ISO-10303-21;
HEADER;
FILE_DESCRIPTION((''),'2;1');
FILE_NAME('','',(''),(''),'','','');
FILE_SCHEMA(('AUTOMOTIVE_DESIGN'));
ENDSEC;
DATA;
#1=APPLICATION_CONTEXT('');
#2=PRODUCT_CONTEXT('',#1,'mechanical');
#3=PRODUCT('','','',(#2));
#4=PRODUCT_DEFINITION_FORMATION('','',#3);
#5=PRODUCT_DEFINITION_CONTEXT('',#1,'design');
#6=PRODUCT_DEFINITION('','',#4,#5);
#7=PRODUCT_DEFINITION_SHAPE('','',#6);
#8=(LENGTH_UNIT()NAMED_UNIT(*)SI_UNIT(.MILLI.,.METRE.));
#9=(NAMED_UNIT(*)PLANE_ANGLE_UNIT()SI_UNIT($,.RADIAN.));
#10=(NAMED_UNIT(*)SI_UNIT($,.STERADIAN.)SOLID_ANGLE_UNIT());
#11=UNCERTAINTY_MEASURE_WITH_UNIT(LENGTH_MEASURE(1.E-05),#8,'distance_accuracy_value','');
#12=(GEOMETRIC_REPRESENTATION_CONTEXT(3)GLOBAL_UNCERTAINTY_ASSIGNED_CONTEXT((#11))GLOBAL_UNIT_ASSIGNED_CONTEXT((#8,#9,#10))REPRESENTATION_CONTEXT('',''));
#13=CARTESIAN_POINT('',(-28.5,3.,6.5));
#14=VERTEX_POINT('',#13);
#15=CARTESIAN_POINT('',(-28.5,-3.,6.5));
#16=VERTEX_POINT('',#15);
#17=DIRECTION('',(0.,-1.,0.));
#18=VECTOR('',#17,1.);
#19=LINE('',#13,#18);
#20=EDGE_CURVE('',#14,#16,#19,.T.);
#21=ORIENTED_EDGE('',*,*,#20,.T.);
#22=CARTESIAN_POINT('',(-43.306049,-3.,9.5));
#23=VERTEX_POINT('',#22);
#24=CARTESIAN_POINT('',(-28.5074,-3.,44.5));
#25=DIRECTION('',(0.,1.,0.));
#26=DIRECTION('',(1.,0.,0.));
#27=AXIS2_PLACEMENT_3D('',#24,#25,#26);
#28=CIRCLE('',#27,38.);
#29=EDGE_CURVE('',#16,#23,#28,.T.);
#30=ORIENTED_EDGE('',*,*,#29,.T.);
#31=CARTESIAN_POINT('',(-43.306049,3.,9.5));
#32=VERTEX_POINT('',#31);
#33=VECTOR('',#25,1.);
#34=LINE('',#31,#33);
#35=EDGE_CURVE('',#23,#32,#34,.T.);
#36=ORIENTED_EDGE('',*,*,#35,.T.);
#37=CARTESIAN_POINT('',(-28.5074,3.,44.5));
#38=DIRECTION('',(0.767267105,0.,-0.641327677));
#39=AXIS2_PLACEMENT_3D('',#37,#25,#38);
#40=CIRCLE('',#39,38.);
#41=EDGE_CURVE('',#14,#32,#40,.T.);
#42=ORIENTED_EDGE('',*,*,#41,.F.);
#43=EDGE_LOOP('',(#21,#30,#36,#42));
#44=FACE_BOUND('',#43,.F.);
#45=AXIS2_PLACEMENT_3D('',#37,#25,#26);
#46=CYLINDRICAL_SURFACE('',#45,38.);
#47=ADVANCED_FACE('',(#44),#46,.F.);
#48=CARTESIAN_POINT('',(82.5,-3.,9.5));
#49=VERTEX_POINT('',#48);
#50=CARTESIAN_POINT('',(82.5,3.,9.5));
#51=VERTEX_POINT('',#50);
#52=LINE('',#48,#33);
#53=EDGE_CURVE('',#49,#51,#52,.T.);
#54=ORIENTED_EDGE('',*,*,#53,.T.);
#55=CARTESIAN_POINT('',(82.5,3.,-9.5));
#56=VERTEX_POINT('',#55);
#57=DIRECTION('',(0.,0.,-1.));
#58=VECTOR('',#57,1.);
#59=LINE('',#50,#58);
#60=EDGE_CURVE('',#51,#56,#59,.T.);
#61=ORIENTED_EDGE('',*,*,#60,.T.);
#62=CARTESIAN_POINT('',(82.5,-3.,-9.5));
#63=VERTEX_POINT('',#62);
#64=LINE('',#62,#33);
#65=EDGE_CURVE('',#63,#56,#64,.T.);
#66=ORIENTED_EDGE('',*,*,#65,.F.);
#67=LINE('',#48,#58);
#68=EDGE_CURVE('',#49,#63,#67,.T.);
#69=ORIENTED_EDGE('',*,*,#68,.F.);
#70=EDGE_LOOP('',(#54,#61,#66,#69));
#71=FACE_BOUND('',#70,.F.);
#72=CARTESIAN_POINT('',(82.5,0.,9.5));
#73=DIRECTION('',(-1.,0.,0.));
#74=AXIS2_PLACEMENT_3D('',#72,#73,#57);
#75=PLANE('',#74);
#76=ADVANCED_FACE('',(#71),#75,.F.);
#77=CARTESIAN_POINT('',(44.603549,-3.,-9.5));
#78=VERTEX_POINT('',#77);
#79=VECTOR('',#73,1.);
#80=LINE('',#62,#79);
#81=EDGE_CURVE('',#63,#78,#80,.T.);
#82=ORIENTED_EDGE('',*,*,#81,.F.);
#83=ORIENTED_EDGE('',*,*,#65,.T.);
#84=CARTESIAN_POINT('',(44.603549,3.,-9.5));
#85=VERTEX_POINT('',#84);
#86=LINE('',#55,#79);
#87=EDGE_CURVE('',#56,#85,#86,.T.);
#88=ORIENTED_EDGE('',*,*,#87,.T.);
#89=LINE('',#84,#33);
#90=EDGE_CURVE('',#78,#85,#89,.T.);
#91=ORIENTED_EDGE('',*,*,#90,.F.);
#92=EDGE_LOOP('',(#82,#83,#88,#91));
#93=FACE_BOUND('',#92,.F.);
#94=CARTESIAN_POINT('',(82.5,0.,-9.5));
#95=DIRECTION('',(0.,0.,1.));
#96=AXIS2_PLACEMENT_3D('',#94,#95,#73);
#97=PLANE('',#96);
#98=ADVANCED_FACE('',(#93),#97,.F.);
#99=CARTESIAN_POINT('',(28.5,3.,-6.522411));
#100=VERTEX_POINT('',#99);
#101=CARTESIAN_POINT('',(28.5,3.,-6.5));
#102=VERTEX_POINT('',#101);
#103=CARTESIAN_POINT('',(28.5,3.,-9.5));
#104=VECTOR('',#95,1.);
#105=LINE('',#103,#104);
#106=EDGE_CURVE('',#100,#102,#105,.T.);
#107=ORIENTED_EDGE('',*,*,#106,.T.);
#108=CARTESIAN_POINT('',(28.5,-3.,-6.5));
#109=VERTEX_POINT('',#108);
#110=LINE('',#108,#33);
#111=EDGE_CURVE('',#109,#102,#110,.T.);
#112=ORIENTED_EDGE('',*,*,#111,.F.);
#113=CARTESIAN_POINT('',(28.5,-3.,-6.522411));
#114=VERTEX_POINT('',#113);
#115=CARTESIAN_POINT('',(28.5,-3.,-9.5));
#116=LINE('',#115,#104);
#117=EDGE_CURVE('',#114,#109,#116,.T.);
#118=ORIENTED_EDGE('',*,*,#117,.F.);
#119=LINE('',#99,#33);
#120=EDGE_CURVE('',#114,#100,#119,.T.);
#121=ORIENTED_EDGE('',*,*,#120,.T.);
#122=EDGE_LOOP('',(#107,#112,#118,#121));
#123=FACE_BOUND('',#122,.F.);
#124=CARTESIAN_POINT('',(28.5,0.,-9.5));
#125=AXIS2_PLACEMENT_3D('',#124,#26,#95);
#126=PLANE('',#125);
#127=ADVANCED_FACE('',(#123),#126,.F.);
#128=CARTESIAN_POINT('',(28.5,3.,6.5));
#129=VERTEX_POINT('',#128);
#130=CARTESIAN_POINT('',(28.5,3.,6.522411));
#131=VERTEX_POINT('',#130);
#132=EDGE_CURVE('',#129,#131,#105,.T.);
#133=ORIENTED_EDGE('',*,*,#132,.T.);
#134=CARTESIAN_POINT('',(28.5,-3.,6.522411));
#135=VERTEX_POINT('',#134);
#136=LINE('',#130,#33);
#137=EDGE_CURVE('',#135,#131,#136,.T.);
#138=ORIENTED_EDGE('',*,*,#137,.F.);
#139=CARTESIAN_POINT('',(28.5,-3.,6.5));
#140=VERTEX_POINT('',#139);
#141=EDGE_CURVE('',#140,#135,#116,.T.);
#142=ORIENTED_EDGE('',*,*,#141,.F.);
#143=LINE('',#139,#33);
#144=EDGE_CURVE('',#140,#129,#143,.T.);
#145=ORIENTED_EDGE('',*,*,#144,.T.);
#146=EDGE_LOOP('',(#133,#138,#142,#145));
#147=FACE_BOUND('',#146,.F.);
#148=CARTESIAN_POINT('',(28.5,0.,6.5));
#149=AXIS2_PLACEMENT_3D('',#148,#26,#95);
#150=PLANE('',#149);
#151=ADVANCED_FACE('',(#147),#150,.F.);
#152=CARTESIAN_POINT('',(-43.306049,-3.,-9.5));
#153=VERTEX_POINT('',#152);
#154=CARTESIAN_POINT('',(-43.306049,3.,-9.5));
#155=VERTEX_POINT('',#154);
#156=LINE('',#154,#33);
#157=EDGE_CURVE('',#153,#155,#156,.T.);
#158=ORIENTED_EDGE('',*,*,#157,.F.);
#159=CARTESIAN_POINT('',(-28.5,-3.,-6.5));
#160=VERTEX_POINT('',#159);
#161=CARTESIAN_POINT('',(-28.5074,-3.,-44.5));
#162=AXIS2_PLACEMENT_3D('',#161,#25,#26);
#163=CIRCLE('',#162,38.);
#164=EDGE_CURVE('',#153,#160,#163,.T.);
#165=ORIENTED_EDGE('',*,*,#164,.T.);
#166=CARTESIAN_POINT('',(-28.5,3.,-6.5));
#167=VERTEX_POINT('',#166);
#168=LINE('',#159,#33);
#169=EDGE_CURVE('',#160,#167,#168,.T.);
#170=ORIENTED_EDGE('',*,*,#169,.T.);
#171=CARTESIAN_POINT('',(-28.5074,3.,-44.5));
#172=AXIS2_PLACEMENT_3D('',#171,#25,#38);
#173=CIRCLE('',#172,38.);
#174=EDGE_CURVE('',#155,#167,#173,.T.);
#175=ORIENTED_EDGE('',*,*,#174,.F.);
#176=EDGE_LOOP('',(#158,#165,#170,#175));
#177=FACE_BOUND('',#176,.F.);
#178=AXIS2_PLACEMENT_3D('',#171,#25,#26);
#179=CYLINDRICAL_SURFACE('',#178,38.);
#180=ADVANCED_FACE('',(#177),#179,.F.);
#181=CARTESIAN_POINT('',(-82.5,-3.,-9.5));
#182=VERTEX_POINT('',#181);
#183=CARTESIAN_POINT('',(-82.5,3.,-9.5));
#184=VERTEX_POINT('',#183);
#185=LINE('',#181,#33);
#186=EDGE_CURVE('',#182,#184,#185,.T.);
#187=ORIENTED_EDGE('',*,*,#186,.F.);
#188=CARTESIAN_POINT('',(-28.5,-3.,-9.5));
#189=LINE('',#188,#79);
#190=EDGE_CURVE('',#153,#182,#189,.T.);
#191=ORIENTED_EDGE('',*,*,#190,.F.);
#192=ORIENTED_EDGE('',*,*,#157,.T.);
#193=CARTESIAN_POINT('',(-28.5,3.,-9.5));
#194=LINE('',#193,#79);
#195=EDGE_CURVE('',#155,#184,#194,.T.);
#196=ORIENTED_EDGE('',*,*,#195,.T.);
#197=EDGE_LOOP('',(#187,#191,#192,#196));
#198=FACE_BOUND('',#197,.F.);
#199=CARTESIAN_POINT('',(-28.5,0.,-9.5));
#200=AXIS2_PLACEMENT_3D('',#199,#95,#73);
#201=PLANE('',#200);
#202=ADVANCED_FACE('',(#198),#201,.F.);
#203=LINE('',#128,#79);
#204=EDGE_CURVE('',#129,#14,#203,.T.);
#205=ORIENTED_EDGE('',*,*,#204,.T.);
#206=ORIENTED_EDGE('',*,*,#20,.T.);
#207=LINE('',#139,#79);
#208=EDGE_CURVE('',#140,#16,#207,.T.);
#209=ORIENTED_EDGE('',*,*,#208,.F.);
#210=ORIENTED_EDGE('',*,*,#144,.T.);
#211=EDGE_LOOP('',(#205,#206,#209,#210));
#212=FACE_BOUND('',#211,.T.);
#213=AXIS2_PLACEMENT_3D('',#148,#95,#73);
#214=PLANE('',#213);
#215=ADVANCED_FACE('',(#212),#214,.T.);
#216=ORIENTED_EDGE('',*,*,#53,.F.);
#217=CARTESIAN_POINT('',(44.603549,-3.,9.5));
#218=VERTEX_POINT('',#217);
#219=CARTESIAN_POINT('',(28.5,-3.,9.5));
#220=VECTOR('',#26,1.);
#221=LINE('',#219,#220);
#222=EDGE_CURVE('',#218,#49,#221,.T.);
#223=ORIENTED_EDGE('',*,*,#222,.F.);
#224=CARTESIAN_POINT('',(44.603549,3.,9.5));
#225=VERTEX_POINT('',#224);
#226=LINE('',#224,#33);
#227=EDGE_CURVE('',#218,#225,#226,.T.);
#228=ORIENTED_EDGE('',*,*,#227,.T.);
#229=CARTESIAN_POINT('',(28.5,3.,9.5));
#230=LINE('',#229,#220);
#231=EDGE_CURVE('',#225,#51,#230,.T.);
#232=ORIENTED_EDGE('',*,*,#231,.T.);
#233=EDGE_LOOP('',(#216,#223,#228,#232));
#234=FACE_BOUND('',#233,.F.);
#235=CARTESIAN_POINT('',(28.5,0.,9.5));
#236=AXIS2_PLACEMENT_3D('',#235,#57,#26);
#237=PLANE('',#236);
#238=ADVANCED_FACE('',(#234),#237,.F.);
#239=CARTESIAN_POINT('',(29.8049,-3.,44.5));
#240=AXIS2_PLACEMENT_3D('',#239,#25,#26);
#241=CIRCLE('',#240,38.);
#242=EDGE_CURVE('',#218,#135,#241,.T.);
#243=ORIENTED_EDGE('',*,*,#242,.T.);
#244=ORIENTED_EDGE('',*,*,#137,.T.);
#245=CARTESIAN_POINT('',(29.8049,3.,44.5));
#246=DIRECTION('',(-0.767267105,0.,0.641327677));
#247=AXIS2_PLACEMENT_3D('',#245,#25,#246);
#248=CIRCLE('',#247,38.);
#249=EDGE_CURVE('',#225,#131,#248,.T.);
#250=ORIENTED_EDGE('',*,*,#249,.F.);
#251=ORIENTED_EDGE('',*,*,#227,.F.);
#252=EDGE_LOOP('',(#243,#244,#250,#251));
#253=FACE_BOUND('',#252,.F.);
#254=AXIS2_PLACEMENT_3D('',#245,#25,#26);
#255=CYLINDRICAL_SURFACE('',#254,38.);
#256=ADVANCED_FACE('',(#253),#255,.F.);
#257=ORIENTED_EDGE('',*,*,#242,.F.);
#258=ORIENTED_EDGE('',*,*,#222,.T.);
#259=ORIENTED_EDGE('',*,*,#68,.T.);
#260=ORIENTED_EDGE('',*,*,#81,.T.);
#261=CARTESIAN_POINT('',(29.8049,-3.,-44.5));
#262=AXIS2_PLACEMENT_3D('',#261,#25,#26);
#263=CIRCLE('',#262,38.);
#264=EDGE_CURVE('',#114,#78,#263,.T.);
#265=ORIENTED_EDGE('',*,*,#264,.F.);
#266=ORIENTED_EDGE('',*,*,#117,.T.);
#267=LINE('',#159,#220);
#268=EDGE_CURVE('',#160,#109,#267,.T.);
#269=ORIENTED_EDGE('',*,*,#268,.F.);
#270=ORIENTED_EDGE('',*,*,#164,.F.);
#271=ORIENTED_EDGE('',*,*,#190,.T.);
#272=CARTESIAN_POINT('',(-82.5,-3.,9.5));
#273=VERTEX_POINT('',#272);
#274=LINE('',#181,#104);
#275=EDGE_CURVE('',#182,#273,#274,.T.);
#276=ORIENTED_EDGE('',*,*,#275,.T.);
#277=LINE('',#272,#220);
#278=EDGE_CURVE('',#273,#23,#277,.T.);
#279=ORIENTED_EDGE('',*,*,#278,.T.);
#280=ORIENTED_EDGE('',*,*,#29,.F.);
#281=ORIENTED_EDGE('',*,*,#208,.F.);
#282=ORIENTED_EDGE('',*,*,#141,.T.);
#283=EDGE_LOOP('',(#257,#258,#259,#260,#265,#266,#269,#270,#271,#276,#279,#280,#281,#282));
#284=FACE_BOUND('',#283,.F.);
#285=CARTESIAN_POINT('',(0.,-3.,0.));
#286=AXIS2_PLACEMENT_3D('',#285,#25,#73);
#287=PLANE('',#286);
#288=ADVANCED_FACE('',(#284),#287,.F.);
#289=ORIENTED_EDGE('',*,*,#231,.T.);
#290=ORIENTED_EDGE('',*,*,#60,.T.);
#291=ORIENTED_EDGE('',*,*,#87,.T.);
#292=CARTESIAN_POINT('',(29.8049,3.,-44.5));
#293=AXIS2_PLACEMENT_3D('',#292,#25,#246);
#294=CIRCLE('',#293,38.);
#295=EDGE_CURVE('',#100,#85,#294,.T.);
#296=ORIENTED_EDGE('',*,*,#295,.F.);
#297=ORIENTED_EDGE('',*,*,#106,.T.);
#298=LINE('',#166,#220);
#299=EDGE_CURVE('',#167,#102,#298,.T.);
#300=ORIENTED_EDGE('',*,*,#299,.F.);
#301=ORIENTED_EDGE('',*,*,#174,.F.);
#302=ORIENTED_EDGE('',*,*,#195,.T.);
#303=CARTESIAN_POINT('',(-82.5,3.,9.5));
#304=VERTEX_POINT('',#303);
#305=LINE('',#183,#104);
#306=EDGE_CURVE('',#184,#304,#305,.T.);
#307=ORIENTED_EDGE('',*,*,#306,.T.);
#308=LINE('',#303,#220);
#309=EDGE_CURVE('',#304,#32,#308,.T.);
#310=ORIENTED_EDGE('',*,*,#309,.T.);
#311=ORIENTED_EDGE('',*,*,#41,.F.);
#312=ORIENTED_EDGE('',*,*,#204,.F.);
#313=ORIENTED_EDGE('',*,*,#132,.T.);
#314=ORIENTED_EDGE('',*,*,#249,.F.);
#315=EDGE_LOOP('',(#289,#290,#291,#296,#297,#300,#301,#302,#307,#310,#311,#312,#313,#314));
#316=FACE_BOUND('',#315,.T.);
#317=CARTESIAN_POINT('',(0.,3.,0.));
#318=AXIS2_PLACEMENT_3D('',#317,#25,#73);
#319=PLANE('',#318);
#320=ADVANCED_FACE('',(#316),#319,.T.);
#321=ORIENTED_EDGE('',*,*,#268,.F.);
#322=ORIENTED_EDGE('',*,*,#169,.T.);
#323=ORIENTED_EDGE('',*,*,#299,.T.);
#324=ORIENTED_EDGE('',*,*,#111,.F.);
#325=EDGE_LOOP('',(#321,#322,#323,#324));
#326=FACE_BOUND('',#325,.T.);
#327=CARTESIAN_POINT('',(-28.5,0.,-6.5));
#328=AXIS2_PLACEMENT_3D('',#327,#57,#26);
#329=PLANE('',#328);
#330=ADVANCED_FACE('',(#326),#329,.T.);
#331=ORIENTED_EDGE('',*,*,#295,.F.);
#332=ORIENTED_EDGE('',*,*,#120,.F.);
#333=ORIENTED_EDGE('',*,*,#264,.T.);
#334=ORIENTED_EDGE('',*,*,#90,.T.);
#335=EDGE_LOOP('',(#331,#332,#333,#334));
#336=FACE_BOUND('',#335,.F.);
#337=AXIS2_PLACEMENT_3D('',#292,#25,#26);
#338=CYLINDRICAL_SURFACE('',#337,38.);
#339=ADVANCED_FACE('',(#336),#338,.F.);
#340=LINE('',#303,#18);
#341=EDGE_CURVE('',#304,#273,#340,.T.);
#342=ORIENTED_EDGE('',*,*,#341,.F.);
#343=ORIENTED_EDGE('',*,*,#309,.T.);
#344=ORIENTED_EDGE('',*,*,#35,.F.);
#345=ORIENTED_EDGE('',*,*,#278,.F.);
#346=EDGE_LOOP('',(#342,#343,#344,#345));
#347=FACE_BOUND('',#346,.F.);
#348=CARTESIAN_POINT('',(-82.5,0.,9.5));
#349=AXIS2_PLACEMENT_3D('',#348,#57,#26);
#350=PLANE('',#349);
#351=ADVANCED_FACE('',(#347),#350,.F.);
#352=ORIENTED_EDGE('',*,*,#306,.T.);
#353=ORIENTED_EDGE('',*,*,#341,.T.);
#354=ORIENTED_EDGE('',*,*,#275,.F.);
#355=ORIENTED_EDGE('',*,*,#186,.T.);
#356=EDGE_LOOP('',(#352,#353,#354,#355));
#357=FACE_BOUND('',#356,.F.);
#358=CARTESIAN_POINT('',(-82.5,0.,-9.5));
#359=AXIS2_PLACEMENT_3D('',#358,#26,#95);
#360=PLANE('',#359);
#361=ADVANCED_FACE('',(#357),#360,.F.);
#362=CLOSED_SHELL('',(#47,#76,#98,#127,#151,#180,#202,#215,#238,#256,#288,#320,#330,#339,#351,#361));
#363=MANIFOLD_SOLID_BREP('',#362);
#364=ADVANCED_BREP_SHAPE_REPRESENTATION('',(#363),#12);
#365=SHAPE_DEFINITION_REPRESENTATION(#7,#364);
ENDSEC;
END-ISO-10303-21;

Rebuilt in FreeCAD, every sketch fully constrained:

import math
import FreeCAD as App
import Part
import Sketcher
Q = App.Units.Quantity


def add_polygon(sketch, points):
    """Adds a closed chain of lines whose ends are joined by coincident constraints."""
    first, n = sketch.GeometryCount, len(points)
    for a, b in zip(points, points[1:] + points[:1]):
        sketch.addGeometry(Part.LineSegment(App.Vector(*a, 0), App.Vector(*b, 0)), False)
    for i in range(n):
        sketch.addConstraint(Sketcher.Constraint("Coincident", first + i, 2, first + (i + 1) % n, 1))

doc = App.newDocument("Part")
body = doc.addObject("PartDesign::Body", "Body")

sketch1 = body.newObject("Sketcher::SketchObject", "Sketch")
sketch1.AttachmentSupport = (doc.getObject("XZ_Plane"), [""])
sketch1.MapMode = "FlatFace"
add_polygon(sketch1, [(-28.5, 6.5), (28.5, 6.5), (28.5, 9.5), (82.5, 9.5), (82.5, -9.5), (28.5, -9.5), (28.5, -6.5), (-28.5, -6.5), (-28.5, -9.5), (-82.5, -9.5), (-82.5, 9.5), (-28.5, 9.5)])
sketch1.addConstraint(Sketcher.Constraint("Horizontal", 0))
sketch1.addConstraint(Sketcher.Constraint("Vertical", 1))
sketch1.addConstraint(Sketcher.Constraint("Horizontal", 2))
sketch1.addConstraint(Sketcher.Constraint("Vertical", 3))
sketch1.addConstraint(Sketcher.Constraint("Horizontal", 4))
sketch1.addConstraint(Sketcher.Constraint("Vertical", 5))
sketch1.addConstraint(Sketcher.Constraint("Horizontal", 6))
sketch1.addConstraint(Sketcher.Constraint("Vertical", 7))
sketch1.addConstraint(Sketcher.Constraint("Horizontal", 8))
sketch1.addConstraint(Sketcher.Constraint("Vertical", 9))
sketch1.addConstraint(Sketcher.Constraint("Horizontal", 10))
sketch1.addConstraint(Sketcher.Constraint("Vertical", 11))
sketch1.addConstraint(Sketcher.Constraint("Symmetric", 0, 2, 6, 2, -1, 1))
sketch1.addConstraint(Sketcher.Constraint("Symmetric", 2, 2, 8, 2, -1, 1))
sketch1.addConstraint(Sketcher.Constraint("Symmetric", 4, 2, 10, 2, -1, 1))
sketch1.addConstraint(Sketcher.Constraint("Symmetric", 4, 2, 7, 2, -2))
sketch1.addConstraint(Sketcher.Constraint("DistanceX", 0, 1, 0, 2, Q("57 mm")))
sketch1.addConstraint(Sketcher.Constraint("DistanceY", 3, 2, 3, 1, Q("19 mm")))
sketch1.addConstraint(Sketcher.Constraint("DistanceY", 5, 2, 0, 2, Q("13 mm")))
sketch1.addConstraint(Sketcher.Constraint("DistanceX", 2, 1, 2, 2, Q("54 mm")))
pad1 = body.newObject("PartDesign::Pad", "Pad")
pad1.Profile = sketch1
pad1.Length = 6
pad1.Midplane = True

sketch2 = body.newObject("Sketcher::SketchObject", "Sketch001")
sketch2.AttachmentSupport = (doc.getObject("XZ_Plane"), [""])
sketch2.MapMode = "FlatFace"
sketch2.AttachmentOffset = App.Placement(App.Vector(0, 0, -3), App.Rotation())
sketch2.addGeometry(Part.ArcOfCircle(Part.Circle(App.Vector(29.8049, 44.5, 0), App.Vector(0, 0, 1), 38), math.radians(-140.109108), math.radians(140.109108)), False)
sketch2.addGeometry(Part.ArcOfCircle(Part.Circle(App.Vector(-28.5074, 44.5, 0), App.Vector(0, 0, 1), 38), math.radians(39.890892), math.radians(320.109108)), False)
sketch2.addGeometry(Part.ArcOfCircle(Part.Circle(App.Vector(29.8049, -44.5, 0), App.Vector(0, 0, 1), 38), math.radians(-140.109108), math.radians(140.109108)), False)
sketch2.addGeometry(Part.ArcOfCircle(Part.Circle(App.Vector(-28.5074, -44.5, 0), App.Vector(0, 0, 1), 38), math.radians(39.890892), math.radians(320.109108)), False)
sketch2.addConstraint(Sketcher.Constraint("Coincident", 0, 1, 1, 2))
sketch2.addConstraint(Sketcher.Constraint("Coincident", 1, 1, 0, 2))
sketch2.addConstraint(Sketcher.Constraint("Coincident", 2, 1, 3, 2))
sketch2.addConstraint(Sketcher.Constraint("Coincident", 3, 1, 2, 2))
sketch2.addConstraint(Sketcher.Constraint("Equal", 0, 1))
sketch2.addConstraint(Sketcher.Constraint("Equal", 1, 2))
sketch2.addConstraint(Sketcher.Constraint("Equal", 2, 3))
sketch2.addConstraint(Sketcher.Constraint("Symmetric", 0, 3, 2, 3, -1))
sketch2.addConstraint(Sketcher.Constraint("Symmetric", 1, 3, 3, 3, -1))
sketch2.addConstraint(Sketcher.Constraint("Horizontal", 0, 3, 1, 3))
sketch2.addConstraint(Sketcher.Constraint("Radius", 0, Q("38 mm")))
sketch2.addConstraint(Sketcher.Constraint("DistanceY", 2, 3, 0, 3, Q("89 mm")))
sketch2.addConstraint(Sketcher.Constraint("DistanceX", -1, 1, 0, 3, Q("29.805 mm")))
sketch2.addConstraint(Sketcher.Constraint("DistanceY", 0, 1, 1, 1, Q("48.741 mm")))
pocket1 = body.newObject("PartDesign::Pocket", "Pocket")
pocket1.Profile = sketch2
pocket1.Type = "ThroughAll"
pocket1.Reversed = True

doc.recompute()
